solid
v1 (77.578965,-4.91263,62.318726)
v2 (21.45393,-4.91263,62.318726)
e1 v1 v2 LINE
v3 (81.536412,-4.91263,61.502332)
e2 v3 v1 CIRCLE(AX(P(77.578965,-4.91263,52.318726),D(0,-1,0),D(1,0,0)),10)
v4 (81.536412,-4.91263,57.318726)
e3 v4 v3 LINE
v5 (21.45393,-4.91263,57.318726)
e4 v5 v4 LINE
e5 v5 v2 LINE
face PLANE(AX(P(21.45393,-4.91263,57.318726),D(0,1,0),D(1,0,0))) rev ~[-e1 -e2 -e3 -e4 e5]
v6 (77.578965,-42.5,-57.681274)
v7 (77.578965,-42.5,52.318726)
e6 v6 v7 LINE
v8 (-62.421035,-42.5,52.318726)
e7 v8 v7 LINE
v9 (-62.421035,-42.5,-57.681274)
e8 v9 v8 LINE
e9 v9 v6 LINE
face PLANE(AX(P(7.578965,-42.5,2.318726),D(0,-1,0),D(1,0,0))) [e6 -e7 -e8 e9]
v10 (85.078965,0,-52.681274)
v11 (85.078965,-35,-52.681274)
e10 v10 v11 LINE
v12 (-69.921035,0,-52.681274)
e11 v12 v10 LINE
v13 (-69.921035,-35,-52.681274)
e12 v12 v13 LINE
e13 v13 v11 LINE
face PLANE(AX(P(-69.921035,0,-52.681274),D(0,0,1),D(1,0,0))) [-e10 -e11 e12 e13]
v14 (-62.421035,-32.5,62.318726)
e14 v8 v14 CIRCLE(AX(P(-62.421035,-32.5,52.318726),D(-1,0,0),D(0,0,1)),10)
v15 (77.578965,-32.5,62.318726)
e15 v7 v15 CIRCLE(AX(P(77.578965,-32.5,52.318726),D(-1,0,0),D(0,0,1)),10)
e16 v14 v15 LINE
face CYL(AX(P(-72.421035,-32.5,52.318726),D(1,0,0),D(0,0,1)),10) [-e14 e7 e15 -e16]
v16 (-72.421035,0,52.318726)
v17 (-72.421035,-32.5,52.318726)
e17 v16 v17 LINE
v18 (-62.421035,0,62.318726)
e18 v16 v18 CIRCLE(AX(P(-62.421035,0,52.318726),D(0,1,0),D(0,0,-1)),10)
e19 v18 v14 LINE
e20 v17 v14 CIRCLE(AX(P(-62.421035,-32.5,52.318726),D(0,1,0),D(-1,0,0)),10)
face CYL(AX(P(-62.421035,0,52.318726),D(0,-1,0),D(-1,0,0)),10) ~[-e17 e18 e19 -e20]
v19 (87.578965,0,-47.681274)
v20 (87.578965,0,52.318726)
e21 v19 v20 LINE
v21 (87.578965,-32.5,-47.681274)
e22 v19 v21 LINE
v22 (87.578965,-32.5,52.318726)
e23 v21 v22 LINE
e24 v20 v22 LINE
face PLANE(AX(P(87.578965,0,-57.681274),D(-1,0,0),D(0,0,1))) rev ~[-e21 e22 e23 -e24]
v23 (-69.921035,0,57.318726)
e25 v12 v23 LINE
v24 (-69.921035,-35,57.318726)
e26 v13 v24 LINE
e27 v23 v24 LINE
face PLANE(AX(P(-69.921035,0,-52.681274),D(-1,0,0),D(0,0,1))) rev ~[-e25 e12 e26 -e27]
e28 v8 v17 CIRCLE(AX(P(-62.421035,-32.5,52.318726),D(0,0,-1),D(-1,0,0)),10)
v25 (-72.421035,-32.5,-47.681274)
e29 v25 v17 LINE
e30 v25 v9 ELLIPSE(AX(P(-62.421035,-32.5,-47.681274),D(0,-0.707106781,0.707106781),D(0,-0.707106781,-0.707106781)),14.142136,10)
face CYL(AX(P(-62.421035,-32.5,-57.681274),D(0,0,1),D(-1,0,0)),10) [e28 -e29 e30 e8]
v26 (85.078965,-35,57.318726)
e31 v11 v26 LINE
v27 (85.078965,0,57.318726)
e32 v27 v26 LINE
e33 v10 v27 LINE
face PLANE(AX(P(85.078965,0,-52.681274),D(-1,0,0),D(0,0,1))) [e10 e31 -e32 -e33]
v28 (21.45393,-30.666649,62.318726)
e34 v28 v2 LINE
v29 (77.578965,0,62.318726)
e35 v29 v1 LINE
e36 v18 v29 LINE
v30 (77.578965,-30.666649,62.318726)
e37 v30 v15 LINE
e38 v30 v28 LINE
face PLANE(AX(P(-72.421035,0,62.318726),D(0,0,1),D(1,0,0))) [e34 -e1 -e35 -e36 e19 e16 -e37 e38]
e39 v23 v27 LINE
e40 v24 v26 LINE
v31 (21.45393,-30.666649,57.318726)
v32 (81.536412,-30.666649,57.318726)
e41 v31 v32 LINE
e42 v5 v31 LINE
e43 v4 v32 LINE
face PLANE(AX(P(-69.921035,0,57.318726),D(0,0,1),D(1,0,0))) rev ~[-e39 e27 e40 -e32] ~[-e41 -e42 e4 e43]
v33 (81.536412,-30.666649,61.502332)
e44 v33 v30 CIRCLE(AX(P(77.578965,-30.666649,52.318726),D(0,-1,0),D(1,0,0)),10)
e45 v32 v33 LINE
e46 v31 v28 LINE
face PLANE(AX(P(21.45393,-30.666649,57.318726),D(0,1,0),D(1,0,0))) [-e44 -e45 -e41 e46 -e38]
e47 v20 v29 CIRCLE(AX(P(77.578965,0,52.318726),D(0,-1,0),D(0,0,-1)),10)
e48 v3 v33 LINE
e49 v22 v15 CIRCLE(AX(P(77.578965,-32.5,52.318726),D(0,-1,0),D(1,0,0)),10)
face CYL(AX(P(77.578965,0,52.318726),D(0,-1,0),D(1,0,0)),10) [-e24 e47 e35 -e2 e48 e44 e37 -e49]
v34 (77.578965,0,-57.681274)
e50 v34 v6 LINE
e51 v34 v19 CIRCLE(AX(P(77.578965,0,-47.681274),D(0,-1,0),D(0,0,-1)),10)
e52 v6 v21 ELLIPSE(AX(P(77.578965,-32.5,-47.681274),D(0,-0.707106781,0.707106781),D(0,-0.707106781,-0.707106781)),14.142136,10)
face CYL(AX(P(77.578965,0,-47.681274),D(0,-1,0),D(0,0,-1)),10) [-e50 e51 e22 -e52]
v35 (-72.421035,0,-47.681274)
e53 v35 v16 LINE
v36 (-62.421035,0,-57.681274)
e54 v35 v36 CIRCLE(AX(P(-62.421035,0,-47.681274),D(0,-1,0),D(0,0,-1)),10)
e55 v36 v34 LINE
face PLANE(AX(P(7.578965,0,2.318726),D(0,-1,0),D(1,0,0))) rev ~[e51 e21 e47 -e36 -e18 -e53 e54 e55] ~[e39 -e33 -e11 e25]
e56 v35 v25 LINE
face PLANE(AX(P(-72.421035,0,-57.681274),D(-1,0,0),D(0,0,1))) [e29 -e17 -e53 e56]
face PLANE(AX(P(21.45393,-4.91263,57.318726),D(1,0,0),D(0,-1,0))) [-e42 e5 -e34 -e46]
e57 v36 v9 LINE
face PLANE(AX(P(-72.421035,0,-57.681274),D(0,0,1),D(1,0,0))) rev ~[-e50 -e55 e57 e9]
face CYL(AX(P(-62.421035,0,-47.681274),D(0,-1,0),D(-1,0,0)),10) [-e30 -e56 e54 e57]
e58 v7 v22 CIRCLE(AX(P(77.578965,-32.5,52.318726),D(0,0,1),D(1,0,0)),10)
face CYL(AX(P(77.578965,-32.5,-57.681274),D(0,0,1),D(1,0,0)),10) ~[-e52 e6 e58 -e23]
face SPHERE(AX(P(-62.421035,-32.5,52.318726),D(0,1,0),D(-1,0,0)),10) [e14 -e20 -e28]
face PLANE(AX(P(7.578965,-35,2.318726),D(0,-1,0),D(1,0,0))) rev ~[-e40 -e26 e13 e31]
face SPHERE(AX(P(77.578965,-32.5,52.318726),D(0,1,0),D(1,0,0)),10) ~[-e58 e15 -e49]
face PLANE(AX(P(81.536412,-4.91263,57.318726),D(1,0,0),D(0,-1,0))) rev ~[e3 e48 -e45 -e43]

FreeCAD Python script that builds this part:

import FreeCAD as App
import Part
import Sketcher


def edges_at(feature, points):
    """Names of the edges that pass closest to the given points."""
    edges = feature.Shape.Edges
    near = lambda p: min(range(len(edges)), key=lambda i: edges[i].distToShape(Part.Vertex(*p))[0])
    return sorted({f"Edge{near(p) + 1}" for p in points})


def add_polygon(sketch, points):
    """Adds a closed chain of lines whose ends are joined by coincident constraints."""
    first, n = sketch.GeometryCount, len(points)
    for a, b in zip(points, points[1:] + points[:1]):
        sketch.addGeometry(Part.LineSegment(App.Vector(*a, 0), App.Vector(*b, 0)), False)
    for i in range(n):
        sketch.addConstraint(Sketcher.Constraint("Coincident", first + i, 2, first + (i + 1) % n, 1))

doc = App.newDocument("Part")
body = doc.addObject("PartDesign::Body", "Body")

# Sketch on XZ plane
sketch1 = body.newObject("Sketcher::SketchObject", "Sketch")
sketch1.AttachmentSupport = (doc.getObject("XZ_Plane"), [""])
sketch1.MapMode = "FlatFace"
add_polygon(sketch1, [(-72.421035, 62.318726), (-72.421035, -57.681274), (87.578965, -57.681274), (87.578965, 62.318726)])  # lines 0-3
sketch1.addConstraint([
    Sketcher.Constraint("Vertical", 0),
    Sketcher.Constraint("Horizontal", 1),
    Sketcher.Constraint("Vertical", 2),
    Sketcher.Constraint("Horizontal", 3),
    Sketcher.Constraint("DistanceX", 1, 1, 1, 2, 160.0),
    Sketcher.Constraint("DistanceY", 0, 2, 0, 1, 120.0),
    Sketcher.Constraint("DistanceX", 0, 2, -1, 1, 72.421035),
    Sketcher.Constraint("DistanceY", 0, 2, -1, 1, 57.681274),
])
pad1 = body.newObject("PartDesign::Pad", "Pad")
pad1.Profile = sketch1
pad1.Length = 42.5
doc.recompute()

fillet = body.newObject("PartDesign::Fillet", "Fillet")
fillet.Base = (pad1, edges_at(pad1, [
    (87.579, -21.25, 62.319),
    (-72.421, -21.25, 62.319),
    (87.579, -21.25, -57.681),
    (-72.421, -21.25, -57.681),
    (-72.421, -42.5, 2.319),
    (87.579, -42.5, 2.319),
    (7.579, -42.5, 62.319),
]))
fillet.Radius = 10

# Sketch on XZ plane
sketch2 = body.newObject("Sketcher::SketchObject", "Sketch001")
sketch2.AttachmentSupport = (doc.getObject("XZ_Plane"), [""])
sketch2.MapMode = "FlatFace"
add_polygon(sketch2, [(-69.921035, 57.318726), (-69.921035, -52.681274), (85.078965, -52.681274), (85.078965, 57.318726)])  # lines 0-3
sketch2.addConstraint([
    Sketcher.Constraint("Vertical", 0),
    Sketcher.Constraint("Horizontal", 1),
    Sketcher.Constraint("Vertical", 2),
    Sketcher.Constraint("Horizontal", 3),
    Sketcher.Constraint("DistanceX", 1, 1, 1, 2, 155.0),
    Sketcher.Constraint("DistanceY", 0, 2, 0, 1, 110.0),
    Sketcher.Constraint("DistanceX", 0, 2, -1, 1, 69.921035),
    Sketcher.Constraint("DistanceY", 0, 2, -1, 1, 52.681274),
])
pocket1 = body.newObject("PartDesign::Pocket", "Pocket")
pocket1.Profile = sketch2
pocket1.Length = 35
pocket1.Reversed = True

# Sketch on XY plane
sketch3 = body.newObject("Sketcher::SketchObject", "Sketch002")
sketch3.AttachmentSupport = (doc.getObject("XY_Plane"), [""])
sketch3.MapMode = "FlatFace"
sketch3.AttachmentOffset = App.Placement(App.Vector(0, 0, 57.318726), App.Rotation())
add_polygon(sketch3, [(21.45393, -30.666649), (21.45393, -4.91263), (81.536412, -4.91263), (81.536412, -30.666649)])  # lines 0-3
sketch3.addConstraint([
    Sketcher.Constraint("Vertical", 0),
    Sketcher.Constraint("Horizontal", 1),
    Sketcher.Constraint("Vertical", 2),
    Sketcher.Constraint("Horizontal", 3),
    Sketcher.Constraint("DistanceY", 0, 1, 0, 2, 25.754019),
    Sketcher.Constraint("DistanceX", 1, 1, 1, 2, 60.082482),
    Sketcher.Constraint("DistanceX", -1, 1, 0, 2, 21.45393),
    Sketcher.Constraint("DistanceY", 0, 2, -1, 1, 4.91263),
])
pocket2 = body.newObject("PartDesign::Pocket", "Pocket001")
pocket2.Profile = sketch3
pocket2.Type = "ThroughAll"
pocket2.Reversed = True

doc.recompute()
